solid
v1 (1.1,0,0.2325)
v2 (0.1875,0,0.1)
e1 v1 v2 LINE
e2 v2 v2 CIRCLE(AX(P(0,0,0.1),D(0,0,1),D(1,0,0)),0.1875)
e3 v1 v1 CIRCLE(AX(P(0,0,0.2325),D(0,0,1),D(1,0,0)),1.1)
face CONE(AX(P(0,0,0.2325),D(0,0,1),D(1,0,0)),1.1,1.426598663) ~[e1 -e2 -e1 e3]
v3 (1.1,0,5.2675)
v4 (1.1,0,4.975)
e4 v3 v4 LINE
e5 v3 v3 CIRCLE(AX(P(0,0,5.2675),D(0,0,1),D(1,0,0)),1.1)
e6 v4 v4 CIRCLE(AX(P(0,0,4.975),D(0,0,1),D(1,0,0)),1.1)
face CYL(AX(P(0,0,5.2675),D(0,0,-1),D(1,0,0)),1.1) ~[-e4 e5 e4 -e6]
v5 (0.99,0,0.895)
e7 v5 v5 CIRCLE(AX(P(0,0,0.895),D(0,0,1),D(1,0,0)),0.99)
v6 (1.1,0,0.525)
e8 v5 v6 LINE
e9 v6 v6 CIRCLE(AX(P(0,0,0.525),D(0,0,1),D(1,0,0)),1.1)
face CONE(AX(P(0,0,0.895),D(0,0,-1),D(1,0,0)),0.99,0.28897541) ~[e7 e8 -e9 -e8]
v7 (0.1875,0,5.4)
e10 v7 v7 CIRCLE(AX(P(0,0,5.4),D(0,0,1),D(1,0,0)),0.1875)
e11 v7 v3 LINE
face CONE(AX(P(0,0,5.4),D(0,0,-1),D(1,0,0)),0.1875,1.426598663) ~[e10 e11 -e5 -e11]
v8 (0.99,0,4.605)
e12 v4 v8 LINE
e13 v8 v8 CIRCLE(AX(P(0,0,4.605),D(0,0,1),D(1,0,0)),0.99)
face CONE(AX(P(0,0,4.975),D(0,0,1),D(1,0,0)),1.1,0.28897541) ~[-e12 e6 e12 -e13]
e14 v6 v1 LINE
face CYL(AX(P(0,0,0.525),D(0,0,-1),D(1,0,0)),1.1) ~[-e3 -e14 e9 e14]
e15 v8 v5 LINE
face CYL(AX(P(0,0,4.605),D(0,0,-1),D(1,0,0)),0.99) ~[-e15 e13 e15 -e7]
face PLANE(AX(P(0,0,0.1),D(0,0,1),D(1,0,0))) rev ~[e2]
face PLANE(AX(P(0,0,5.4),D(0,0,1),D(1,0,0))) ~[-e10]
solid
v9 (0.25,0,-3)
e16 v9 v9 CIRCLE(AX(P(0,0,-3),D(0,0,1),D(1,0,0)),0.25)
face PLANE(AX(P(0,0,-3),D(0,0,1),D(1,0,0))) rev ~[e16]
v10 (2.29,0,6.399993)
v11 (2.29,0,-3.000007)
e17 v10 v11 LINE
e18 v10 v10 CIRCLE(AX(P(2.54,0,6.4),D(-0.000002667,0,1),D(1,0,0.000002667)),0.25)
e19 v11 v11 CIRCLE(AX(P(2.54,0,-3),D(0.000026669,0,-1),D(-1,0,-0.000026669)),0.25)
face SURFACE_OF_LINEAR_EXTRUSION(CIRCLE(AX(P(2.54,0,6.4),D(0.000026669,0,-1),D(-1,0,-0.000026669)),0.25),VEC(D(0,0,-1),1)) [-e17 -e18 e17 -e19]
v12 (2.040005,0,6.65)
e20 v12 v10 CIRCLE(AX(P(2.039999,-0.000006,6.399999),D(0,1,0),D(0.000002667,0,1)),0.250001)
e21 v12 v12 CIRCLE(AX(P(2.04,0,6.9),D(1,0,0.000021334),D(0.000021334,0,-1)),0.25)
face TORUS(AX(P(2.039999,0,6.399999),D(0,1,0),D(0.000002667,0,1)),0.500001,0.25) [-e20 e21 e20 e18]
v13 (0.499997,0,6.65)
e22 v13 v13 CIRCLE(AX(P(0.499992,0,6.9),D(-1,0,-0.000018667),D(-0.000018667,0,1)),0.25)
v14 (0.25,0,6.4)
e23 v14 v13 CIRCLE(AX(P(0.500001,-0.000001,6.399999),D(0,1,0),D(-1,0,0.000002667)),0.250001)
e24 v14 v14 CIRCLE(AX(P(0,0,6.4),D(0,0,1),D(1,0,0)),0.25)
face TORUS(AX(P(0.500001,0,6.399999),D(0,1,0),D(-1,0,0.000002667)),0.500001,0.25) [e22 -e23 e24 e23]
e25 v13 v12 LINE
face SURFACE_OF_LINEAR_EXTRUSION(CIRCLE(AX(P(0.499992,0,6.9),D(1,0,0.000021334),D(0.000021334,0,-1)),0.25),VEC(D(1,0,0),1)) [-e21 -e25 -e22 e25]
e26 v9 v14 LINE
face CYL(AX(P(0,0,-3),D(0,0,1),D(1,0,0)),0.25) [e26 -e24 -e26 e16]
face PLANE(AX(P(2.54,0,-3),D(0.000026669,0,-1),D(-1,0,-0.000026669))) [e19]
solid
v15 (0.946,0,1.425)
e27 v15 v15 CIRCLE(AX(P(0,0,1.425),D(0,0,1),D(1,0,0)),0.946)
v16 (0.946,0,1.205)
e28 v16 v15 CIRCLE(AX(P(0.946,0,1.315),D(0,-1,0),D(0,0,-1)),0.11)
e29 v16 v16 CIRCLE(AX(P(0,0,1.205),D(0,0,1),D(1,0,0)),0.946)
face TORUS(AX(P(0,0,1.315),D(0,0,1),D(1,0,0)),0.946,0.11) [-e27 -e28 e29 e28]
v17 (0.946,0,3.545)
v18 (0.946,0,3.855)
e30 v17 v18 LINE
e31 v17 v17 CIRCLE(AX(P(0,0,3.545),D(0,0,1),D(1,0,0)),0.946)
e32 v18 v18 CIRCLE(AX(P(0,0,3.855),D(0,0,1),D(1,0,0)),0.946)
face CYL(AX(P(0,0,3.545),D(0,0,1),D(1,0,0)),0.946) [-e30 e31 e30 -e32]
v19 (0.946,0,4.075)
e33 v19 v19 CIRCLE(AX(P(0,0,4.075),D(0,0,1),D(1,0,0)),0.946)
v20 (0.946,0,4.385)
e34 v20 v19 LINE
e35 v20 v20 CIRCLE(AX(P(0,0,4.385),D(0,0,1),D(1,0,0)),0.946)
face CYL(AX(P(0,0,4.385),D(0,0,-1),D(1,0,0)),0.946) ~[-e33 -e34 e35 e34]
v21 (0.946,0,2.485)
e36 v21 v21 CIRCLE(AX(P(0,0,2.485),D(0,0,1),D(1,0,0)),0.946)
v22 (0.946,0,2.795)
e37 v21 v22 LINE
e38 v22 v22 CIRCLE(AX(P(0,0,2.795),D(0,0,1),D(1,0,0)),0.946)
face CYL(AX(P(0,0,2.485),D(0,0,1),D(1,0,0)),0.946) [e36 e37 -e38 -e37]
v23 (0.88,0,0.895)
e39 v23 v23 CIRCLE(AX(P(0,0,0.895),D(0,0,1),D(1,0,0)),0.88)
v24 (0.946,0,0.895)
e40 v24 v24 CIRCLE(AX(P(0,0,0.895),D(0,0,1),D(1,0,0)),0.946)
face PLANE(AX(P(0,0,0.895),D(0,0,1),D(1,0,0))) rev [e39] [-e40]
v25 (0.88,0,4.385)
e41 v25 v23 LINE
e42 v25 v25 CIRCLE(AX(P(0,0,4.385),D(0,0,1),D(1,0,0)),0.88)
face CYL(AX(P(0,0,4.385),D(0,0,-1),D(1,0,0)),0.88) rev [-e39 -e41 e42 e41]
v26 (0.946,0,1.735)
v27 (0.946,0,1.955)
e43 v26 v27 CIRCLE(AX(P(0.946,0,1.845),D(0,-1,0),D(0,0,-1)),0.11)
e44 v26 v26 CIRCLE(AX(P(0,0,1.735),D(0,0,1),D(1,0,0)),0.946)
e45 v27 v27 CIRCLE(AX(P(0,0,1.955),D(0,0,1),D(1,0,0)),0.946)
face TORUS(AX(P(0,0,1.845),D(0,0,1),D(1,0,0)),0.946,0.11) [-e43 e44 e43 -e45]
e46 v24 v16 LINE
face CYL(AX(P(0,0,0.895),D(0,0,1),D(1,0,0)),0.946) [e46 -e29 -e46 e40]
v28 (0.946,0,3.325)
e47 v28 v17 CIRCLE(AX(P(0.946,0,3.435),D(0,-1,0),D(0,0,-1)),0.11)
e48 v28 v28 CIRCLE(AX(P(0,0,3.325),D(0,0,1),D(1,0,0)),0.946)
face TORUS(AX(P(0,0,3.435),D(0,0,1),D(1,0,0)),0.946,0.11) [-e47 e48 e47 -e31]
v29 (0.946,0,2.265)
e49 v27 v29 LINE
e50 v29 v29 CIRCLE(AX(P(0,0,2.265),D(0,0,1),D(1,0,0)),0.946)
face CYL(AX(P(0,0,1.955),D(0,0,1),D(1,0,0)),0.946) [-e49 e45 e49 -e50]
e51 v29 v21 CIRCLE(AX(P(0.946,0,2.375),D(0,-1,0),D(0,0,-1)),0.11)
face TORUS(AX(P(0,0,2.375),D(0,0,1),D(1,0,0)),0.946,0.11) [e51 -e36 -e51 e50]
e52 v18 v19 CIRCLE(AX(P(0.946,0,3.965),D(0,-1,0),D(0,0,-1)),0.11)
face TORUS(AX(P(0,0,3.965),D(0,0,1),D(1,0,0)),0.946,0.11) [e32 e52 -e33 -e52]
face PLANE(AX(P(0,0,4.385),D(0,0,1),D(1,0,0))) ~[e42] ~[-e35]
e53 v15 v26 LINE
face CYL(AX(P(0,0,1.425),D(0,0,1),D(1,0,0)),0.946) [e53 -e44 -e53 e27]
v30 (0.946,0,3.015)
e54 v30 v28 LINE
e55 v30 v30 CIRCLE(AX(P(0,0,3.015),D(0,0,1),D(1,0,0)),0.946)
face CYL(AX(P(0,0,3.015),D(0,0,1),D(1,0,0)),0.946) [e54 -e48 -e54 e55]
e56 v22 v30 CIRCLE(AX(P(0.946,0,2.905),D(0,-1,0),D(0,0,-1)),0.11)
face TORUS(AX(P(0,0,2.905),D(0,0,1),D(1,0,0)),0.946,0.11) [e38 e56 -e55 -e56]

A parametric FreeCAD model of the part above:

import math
import FreeCAD as App
import Part
import Sketcher

V = App.Vector
Q = App.Units.Quantity


def add_polygon(sketch, points):
    """Adds a closed chain of lines whose ends are joined by coincident constraints."""
    first, n = sketch.GeometryCount, len(points)
    for a, b in zip(points, points[1:] + points[:1]):
        sketch.addGeometry(Part.LineSegment(App.Vector(*a, 0), App.Vector(*b, 0)), False)
    for i in range(n):
        sketch.addConstraint(Sketcher.Constraint("Coincident", first + i, 2, first + (i + 1) % n, 1))

doc = App.newDocument("Part")
body = doc.addObject("PartDesign::Body", "Body")

# Sketch on XY plane
sketch1 = body.newObject("Sketcher::SketchObject", "Sketch")
sketch1.AttachmentSupport = (doc.getObject("XY_Plane"), [""])
sketch1.MapMode = "FlatFace"
sketch1.AttachmentOffset = App.Placement(V(0, 0, -2), App.Rotation())
sketch1.addGeometry(Part.Circle(V(0, 0, 0), V(0, 0, 1), 0.25), False)
sketch1.addConstraint([
    Sketcher.Constraint("Coincident", 0, 3, -1, 1),
    Sketcher.Constraint("Diameter", 0, Q("0.5 mm")),
])

# Sketch on XZ plane
sketch2 = body.newObject("Sketcher::SketchObject", "Sketch001")
sketch2.AttachmentSupport = (doc.getObject("XZ_Plane"), [""])
sketch2.MapMode = "FlatFace"
sketch2.addGeometry([
    Part.LineSegment(V(0, -3, 0), V(0, 6.4, 0)),  # 0
    Part.ArcOfCircle(Part.Circle(V(0.5, 6.4, 0), V(0, 0, 1), 0.5), math.radians(90), math.radians(180)),  # 1
    Part.LineSegment(V(0.5, 6.9, 0), V(2, 6.9, 0)),  # 2
    Part.ArcOfCircle(Part.Circle(V(2, 6.4, 0), V(0, 0, 1), 0.5), math.radians(0), math.radians(90)),  # 3
    Part.LineSegment(V(2.5, 6.4, 0), V(2.5, -3, 0)),  # 4
], False)
sketch2.addConstraint([
    Sketcher.Constraint("Coincident", 0, 2, 1, 2),
    Sketcher.Constraint("Coincident", 1, 1, 2, 1),
    Sketcher.Constraint("Coincident", 2, 2, 3, 2),
    Sketcher.Constraint("Coincident", 3, 1, 4, 1),
    Sketcher.Constraint("Vertical", 0),
    Sketcher.Constraint("Horizontal", 2),
    Sketcher.Constraint("Vertical", 4),
    Sketcher.Constraint("Equal", 1, 3),
    Sketcher.Constraint("PointOnObject", 0, 1, -2),
    Sketcher.Constraint("Horizontal", 3, 3, 0, 2),
    Sketcher.Constraint("Horizontal", 0, 2, 3, 1),
    Sketcher.Constraint("Horizontal", 0, 1, 4, 2),
    Sketcher.Constraint("Vertical", 3, 3, 2, 2),
    Sketcher.Constraint("Radius", 1, Q("0.500001 mm")),
    Sketcher.Constraint("DistanceY", 0, 1, 0, 2, Q("9.4 mm")),
    Sketcher.Constraint("DistanceY", 0, 1, -1, 1, Q("3 mm")),
    Sketcher.Constraint("DistanceX", -1, 1, 3, 3, Q("2.039999 mm")),
    Sketcher.Constraint("DistanceX", 2, 1, 2, 2, Q("1.540008 mm")),
])
doc.recompute()

additivepipe = body.newObject("PartDesign::AdditivePipe", "AdditivePipe")
additivepipe.Profile = sketch1
additivepipe.Spine = (sketch2, ["Edge1", "Edge2", "Edge3", "Edge4", "Edge5"])
body2 = doc.addObject("PartDesign::Body", "Body001")

# Sketch on XZ plane
sketch3 = body2.newObject("Sketcher::SketchObject", "Sketch002")
sketch3.AttachmentSupport = (doc.getObject("XZ_Plane001"), [""])
sketch3.MapMode = "FlatFace"
add_polygon(sketch3, [(0, 5.4), (0, 0.1), (0.19, 0.1), (1.1, 0.23), (1.1, 0.53), (0.99, 0.9), (0.99, 4.61), (1.1, 4.97), (1.1, 5.27), (0.19, 5.4)])  # lines 0-9
sketch3.addConstraint([
    Sketcher.Constraint("Vertical", 0),
    Sketcher.Constraint("Horizontal", 1),
    Sketcher.Constraint("Vertical", 3),
    Sketcher.Constraint("Vertical", 5),
    Sketcher.Constraint("Vertical", 7),
    Sketcher.Constraint("Horizontal", 9),
    Sketcher.Constraint("PointOnObject", 0, 2, -2),
    Sketcher.Constraint("Vertical", 3, 2, 6, 2),
    Sketcher.Constraint("Vertical", 1, 2, 8, 2),
    Sketcher.Constraint("Equal", 3, 7),
    Sketcher.Constraint("Equal", 4, 6),
    Sketcher.Constraint("Equal", 2, 8),
    Sketcher.Constraint("DistanceY", 0, 2, 0, 1, Q("5.3 mm")),
    Sketcher.Constraint("DistanceY", 5, 1, 5, 2, Q("3.71 mm")),
    Sketcher.Constraint("DistanceY", -1, 1, 0, 2, Q("0.1 mm")),
    Sketcher.Constraint("DistanceX", -1, 1, 2, 2, Q("1.1 mm")),
    Sketcher.Constraint("DistanceX", -1, 1, 4, 2, Q("0.99 mm")),
    Sketcher.Constraint("DistanceY", 3, 2, 4, 2, Q("0.37 mm")),
    Sketcher.Constraint("DistanceX", 1, 1, 1, 2, Q("0.1875 mm")),
    Sketcher.Constraint("DistanceY", 3, 1, 3, 2, Q("0.2925 mm")),
])
revolution = body2.newObject("PartDesign::Revolution", "Revolution")
revolution.Profile = sketch3
revolution.ReferenceAxis = (sketch3, ["V_Axis"])
revolution.Angle = 360
body3 = doc.addObject("PartDesign::Body", "Body002")

# Sketch on XZ plane
sketch4 = body3.newObject("Sketcher::SketchObject", "Sketch003")
sketch4.AttachmentSupport = (doc.getObject("XZ_Plane002"), [""])
sketch4.MapMode = "FlatFace"
sketch4.addGeometry([
    Part.LineSegment(V(0.88, 4.38, 0), V(0.88, 0.9, 0)),  # 0
    Part.LineSegment(V(0.88, 0.9, 0), V(0.95, 0.9, 0)),  # 1
    Part.LineSegment(V(0.95, 0.9, 0), V(0.95, 1.21, 0)),  # 2
    Part.ArcOfCircle(Part.Circle(V(0.95, 1.31, 0), V(0, 0, 1), 0.11), math.radians(-90), math.radians(90)),  # 3
    Part.LineSegment(V(0.95, 1.43, 0), V(0.95, 1.74, 0)),  # 4
    Part.ArcOfCircle(Part.Circle(V(0.95, 1.84, 0), V(0, 0, 1), 0.11), math.radians(-90), math.radians(90)),  # 5
    Part.LineSegment(V(0.95, 1.96, 0), V(0.95, 2.27, 0)),  # 6
    Part.ArcOfCircle(Part.Circle(V(0.95, 2.38, 0), V(0, 0, 1), 0.11), math.radians(-90), math.radians(90)),  # 7
    Part.LineSegment(V(0.95, 2.48, 0), V(0.95, 2.79, 0)),  # 8
    Part.ArcOfCircle(Part.Circle(V(0.95, 2.9, 0), V(0, 0, 1), 0.11), math.radians(-90), math.radians(90)),  # 9
    Part.LineSegment(V(0.95, 3.02, 0), V(0.95, 3.33, 0)),  # 10
    Part.ArcOfCircle(Part.Circle(V(0.95, 3.44, 0), V(0, 0, 1), 0.11), math.radians(-90), math.radians(90)),  # 11
    Part.LineSegment(V(0.95, 3.54, 0), V(0.95, 3.85, 0)),  # 12
    Part.ArcOfCircle(Part.Circle(V(0.95, 3.96, 0), V(0, 0, 1), 0.11), math.radians(-90), math.radians(90)),  # 13
    Part.LineSegment(V(0.95, 4.08, 0), V(0.95, 4.38, 0)),  # 14
    Part.LineSegment(V(0.95, 4.38, 0), V(0.88, 4.38, 0)),  # 15
], False)
sketch4.addConstraint([
    Sketcher.Constraint("Coincident", 0, 2, 1, 1),
    Sketcher.Constraint("Coincident", 1, 2, 2, 1),
    Sketcher.Constraint("Coincident", 2, 2, 3, 1),
    Sketcher.Constraint("Coincident", 3, 2, 4, 1),
    Sketcher.Constraint("Coincident", 4, 2, 5, 1),
    Sketcher.Constraint("Coincident", 5, 2, 6, 1),
    Sketcher.Constraint("Coincident", 6, 2, 7, 1),
    Sketcher.Constraint("Coincident", 7, 2, 8, 1),
    Sketcher.Constraint("Coincident", 8, 2, 9, 1),
    Sketcher.Constraint("Coincident", 9, 2, 10, 1),
    Sketcher.Constraint("Coincident", 10, 2, 11, 1),
    Sketcher.Constraint("Coincident", 11, 2, 12, 1),
    Sketcher.Constraint("Coincident", 12, 2, 13, 1),
    Sketcher.Constraint("Coincident", 13, 2, 14, 1),
    Sketcher.Constraint("Coincident", 14, 2, 15, 1),
    Sketcher.Constraint("Coincident", 15, 2, 0, 1),
    Sketcher.Constraint("Vertical", 0),
    Sketcher.Constraint("Horizontal", 1),
    Sketcher.Constraint("Vertical", 2),
    Sketcher.Constraint("Vertical", 4),
    Sketcher.Constraint("Vertical", 6),
    Sketcher.Constraint("Vertical", 8),
    Sketcher.Constraint("Vertical", 10),
    Sketcher.Constraint("Vertical", 12),
    Sketcher.Constraint("Vertical", 14),
    Sketcher.Constraint("Horizontal", 15),
    Sketcher.Constraint("Equal", 3, 5),
    Sketcher.Constraint("Equal", 5, 7),
    Sketcher.Constraint("Equal", 7, 9),
    Sketcher.Constraint("Equal", 9, 11),
    Sketcher.Constraint("Equal", 11, 13),
    Sketcher.Constraint("Vertical", 3, 3, 5, 3),
    Sketcher.Constraint("Vertical", 5, 3, 7, 3),
    Sketcher.Constraint("Vertical", 7, 3, 9, 3),
    Sketcher.Constraint("Vertical", 9, 3, 11, 3),
    Sketcher.Constraint("Vertical", 11, 3, 13, 3),
    Sketcher.Constraint("Vertical", 13, 3, 1, 2),
    Sketcher.Constraint("Vertical", 2, 2, 3, 2),
    Sketcher.Constraint("Vertical", 4, 2, 5, 2),
    Sketcher.Constraint("Vertical", 6, 2, 7, 2),
    Sketcher.Constraint("Vertical", 8, 2, 9, 2),
    Sketcher.Constraint("Vertical", 10, 2, 11, 2),
    Sketcher.Constraint("Vertical", 12, 2, 13, 2),
    Sketcher.Constraint("Equal", 2, 4),
    Sketcher.Constraint("Equal", 4, 6),
    Sketcher.Constraint("Equal", 6, 8),
    Sketcher.Constraint("Equal", 8, 10),
    Sketcher.Constraint("Equal", 10, 12),
    Sketcher.Constraint("Equal", 12, 14),
    Sketcher.Constraint("Radius", 3, Q("0.11 mm")),
    Sketcher.Constraint("DistanceY", 0, 2, 0, 1, Q("3.49 mm")),
    Sketcher.Constraint("DistanceX", 1, 1, 1, 2, Q("0.066 mm")),
    Sketcher.Constraint("DistanceX", -1, 1, 0, 2, Q("0.88 mm")),
    Sketcher.Constraint("DistanceY", -1, 1, 3, 3, Q("1.315 mm")),
])
revolution2 = body3.newObject("PartDesign::Revolution", "Revolution001")
revolution2.Profile = sketch4
revolution2.ReferenceAxis = (sketch4, ["V_Axis"])
revolution2.Angle = 360

doc.recompute()
